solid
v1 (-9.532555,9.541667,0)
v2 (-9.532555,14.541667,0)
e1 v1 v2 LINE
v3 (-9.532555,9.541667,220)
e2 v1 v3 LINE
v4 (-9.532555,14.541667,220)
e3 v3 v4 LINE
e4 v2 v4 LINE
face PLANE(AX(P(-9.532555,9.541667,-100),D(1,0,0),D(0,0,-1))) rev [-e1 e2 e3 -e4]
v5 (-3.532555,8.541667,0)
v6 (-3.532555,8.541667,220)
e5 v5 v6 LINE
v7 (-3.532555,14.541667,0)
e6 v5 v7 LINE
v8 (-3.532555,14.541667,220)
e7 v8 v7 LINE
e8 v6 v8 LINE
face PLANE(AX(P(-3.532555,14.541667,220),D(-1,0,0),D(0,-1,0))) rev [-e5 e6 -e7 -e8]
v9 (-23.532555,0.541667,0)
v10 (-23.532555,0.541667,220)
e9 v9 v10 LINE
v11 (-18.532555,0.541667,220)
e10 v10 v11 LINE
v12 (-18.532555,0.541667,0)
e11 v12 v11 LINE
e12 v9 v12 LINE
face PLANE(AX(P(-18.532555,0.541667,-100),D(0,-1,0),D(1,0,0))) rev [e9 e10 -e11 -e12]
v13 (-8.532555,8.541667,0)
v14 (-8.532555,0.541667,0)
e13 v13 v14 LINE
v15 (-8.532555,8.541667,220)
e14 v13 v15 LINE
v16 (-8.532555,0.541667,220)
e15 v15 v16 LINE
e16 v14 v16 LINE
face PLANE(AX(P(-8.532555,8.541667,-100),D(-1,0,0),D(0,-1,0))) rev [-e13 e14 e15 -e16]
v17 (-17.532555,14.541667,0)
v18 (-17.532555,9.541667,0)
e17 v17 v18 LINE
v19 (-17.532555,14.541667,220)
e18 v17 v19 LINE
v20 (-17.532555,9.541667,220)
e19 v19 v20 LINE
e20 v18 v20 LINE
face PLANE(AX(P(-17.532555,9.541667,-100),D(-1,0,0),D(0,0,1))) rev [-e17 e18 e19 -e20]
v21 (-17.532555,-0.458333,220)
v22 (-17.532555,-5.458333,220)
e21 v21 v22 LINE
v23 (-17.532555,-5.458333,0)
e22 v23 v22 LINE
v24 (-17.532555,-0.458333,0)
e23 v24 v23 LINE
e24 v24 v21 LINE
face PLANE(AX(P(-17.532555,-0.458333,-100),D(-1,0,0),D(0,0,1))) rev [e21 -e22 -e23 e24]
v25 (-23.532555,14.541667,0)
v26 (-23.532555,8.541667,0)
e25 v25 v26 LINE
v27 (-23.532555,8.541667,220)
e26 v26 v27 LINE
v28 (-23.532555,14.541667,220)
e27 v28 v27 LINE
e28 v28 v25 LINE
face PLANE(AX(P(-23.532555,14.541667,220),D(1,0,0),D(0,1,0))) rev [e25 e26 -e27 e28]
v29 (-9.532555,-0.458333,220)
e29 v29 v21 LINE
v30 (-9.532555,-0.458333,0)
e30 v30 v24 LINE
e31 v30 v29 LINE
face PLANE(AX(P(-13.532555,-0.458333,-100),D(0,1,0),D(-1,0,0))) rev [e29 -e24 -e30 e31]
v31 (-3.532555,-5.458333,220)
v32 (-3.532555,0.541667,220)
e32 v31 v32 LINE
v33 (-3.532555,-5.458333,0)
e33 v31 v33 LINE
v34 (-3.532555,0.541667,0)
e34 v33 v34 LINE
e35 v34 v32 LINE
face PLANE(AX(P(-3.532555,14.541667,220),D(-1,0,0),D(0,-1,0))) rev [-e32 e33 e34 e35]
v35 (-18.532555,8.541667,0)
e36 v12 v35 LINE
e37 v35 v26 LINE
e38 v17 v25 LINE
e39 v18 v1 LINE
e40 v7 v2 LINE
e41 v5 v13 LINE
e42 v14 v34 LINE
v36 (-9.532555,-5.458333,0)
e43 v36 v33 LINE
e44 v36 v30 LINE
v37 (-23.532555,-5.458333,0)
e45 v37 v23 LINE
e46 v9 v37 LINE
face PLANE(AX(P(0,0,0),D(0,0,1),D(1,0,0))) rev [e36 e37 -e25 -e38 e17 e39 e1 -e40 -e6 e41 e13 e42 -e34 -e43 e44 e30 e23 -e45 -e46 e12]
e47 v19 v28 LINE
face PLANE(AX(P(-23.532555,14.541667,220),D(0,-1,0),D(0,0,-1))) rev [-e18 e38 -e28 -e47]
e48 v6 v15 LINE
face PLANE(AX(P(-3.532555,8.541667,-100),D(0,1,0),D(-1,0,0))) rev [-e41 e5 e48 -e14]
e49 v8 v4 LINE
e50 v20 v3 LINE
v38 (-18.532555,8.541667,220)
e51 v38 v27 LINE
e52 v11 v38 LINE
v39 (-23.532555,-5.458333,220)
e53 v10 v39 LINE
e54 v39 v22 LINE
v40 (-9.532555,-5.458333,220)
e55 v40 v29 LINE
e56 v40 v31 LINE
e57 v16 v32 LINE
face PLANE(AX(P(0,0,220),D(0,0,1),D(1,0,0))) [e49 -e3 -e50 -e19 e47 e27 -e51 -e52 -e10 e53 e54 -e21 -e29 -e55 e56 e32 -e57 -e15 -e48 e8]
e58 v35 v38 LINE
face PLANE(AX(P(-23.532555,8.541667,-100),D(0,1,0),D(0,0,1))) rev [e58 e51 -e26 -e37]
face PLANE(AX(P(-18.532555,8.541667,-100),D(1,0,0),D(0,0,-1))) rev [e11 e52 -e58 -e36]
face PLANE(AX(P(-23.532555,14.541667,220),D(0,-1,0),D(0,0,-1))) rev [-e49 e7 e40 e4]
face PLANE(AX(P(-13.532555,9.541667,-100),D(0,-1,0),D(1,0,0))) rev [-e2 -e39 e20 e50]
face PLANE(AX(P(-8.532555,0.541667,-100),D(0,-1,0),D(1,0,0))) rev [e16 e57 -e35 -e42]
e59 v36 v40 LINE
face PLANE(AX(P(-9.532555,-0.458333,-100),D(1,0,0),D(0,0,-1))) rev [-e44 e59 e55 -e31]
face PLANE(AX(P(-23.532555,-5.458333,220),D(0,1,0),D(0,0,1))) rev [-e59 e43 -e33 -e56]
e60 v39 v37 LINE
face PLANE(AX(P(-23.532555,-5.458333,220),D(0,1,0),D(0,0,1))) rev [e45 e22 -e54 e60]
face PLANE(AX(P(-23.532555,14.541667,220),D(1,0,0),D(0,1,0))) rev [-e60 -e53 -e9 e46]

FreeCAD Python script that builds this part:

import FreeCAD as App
import Part
import Sketcher
from FreeCAD import Vector


def add_polygon(sketch, points):
    """Adds a closed chain of lines whose ends are joined by coincident constraints."""
    first, n = sketch.GeometryCount, len(points)
    for a, b in zip(points, points[1:] + points[:1]):
        sketch.addGeometry(Part.LineSegment(App.Vector(*a, 0), App.Vector(*b, 0)), False)
    for i in range(n):
        sketch.addConstraint(Sketcher.Constraint("Coincident", first + i, 2, first + (i + 1) % n, 1))

doc = App.newDocument("Part")
body = doc.addObject("PartDesign::Body", "Body")

# Sketch on XY plane
sketch1 = body.newObject("Sketcher::SketchObject", "Sketch")
sketch1.AttachmentSupport = (doc.getObject("XY_Plane"), [""])
sketch1.MapMode = "FlatFace"
add_polygon(sketch1, [(-24, 15), (-24, -5), (-4, -5), (-4, 15)])  # lines 0-3
sketch1.addConstraint([
    Sketcher.Constraint("Vertical", 0),
    Sketcher.Constraint("Horizontal", 1),
    Sketcher.Constraint("Vertical", 2),
    Sketcher.Constraint("Horizontal", 3),
    Sketcher.Constraint("Equal", 3, 0),
    Sketcher.Constraint("DistanceX", 1, 1, 1, 2, 20.0),
    Sketcher.Constraint("DistanceX", 0, 2, -1, 1, 23.532555),
    Sketcher.Constraint("DistanceY", 0, 2, -1, 1, 5.458333),
])
pad1 = body.newObject("PartDesign::Pad", "Pad")
pad1.Profile = sketch1
pad1.Length = 220

# Sketch on XY plane
sketch2 = body.newObject("Sketcher::SketchObject", "Sketch001")
sketch2.AttachmentSupport = (doc.getObject("XY_Plane"), [""])
sketch2.MapMode = "FlatFace"
sketch2.AttachmentOffset = App.Placement(Vector(0, 0, 220), App.Rotation())
add_polygon(sketch2, [(-18, 10), (-10, 10), (-10, 15), (-18, 15)])  # lines 0-3
add_polygon(sketch2, [(-10, -5), (-10, 0), (-18, 0), (-18, -5)])  # lines 4-7
add_polygon(sketch2, [(-24, 9), (-24, 1), (-19, 1), (-19, 9)])  # lines 8-11
add_polygon(sketch2, [(-9, 9), (-9, 1), (-4, 1), (-4, 9)])  # lines 12-15
sketch2.addConstraint([
    Sketcher.Constraint("Horizontal", 0),
    Sketcher.Constraint("Vertical", 1),
    Sketcher.Constraint("Horizontal", 2),
    Sketcher.Constraint("Vertical", 3),
    Sketcher.Constraint("Vertical", 4),
    Sketcher.Constraint("Horizontal", 5),
    Sketcher.Constraint("Vertical", 6),
    Sketcher.Constraint("Horizontal", 7),
    Sketcher.Constraint("Vertical", 8),
    Sketcher.Constraint("Horizontal", 9),
    Sketcher.Constraint("Vertical", 10),
    Sketcher.Constraint("Horizontal", 11),
    Sketcher.Constraint("Vertical", 12),
    Sketcher.Constraint("Horizontal", 13),
    Sketcher.Constraint("Vertical", 14),
    Sketcher.Constraint("Horizontal", 15),
    Sketcher.Constraint("Horizontal", 9, 2, 12, 2),
    Sketcher.Constraint("Horizontal", 11, 2, 14, 2),
    Sketcher.Constraint("Vertical", 1, 2, 4, 2),
    Sketcher.Constraint("Vertical", 3, 2, 5, 2),
    Sketcher.Constraint("Equal", 11, 13),
    Sketcher.Constraint("Equal", 15, 1),
    Sketcher.Constraint("Equal", 3, 4),
    Sketcher.Constraint("Equal", 7, 8),
    Sketcher.Constraint("DistanceX", 0, 1, 0, 2, 8.0),
    Sketcher.Constraint("DistanceX", 9, 1, 9, 2, 5.0),
    Sketcher.Constraint("DistanceY", 4, 2, 0, 2, 10.0),
    Sketcher.Constraint("DistanceX", 8, 2, 5, 2, 6.0),
    Sketcher.Constraint("DistanceY", 5, 2, 8, 2, 1.0),
    Sketcher.Constraint("DistanceX", 4, 2, 12, 2, 1.0),
    Sketcher.Constraint("DistanceX", 0, 2, -1, 1, 9.532555),
    Sketcher.Constraint("DistanceY", -1, 1, 0, 2, 9.541667),
])
pocket1 = body.newObject("PartDesign::Pocket", "Pocket")
pocket1.Profile = sketch2
pocket1.Length = 320

doc.recompute()
